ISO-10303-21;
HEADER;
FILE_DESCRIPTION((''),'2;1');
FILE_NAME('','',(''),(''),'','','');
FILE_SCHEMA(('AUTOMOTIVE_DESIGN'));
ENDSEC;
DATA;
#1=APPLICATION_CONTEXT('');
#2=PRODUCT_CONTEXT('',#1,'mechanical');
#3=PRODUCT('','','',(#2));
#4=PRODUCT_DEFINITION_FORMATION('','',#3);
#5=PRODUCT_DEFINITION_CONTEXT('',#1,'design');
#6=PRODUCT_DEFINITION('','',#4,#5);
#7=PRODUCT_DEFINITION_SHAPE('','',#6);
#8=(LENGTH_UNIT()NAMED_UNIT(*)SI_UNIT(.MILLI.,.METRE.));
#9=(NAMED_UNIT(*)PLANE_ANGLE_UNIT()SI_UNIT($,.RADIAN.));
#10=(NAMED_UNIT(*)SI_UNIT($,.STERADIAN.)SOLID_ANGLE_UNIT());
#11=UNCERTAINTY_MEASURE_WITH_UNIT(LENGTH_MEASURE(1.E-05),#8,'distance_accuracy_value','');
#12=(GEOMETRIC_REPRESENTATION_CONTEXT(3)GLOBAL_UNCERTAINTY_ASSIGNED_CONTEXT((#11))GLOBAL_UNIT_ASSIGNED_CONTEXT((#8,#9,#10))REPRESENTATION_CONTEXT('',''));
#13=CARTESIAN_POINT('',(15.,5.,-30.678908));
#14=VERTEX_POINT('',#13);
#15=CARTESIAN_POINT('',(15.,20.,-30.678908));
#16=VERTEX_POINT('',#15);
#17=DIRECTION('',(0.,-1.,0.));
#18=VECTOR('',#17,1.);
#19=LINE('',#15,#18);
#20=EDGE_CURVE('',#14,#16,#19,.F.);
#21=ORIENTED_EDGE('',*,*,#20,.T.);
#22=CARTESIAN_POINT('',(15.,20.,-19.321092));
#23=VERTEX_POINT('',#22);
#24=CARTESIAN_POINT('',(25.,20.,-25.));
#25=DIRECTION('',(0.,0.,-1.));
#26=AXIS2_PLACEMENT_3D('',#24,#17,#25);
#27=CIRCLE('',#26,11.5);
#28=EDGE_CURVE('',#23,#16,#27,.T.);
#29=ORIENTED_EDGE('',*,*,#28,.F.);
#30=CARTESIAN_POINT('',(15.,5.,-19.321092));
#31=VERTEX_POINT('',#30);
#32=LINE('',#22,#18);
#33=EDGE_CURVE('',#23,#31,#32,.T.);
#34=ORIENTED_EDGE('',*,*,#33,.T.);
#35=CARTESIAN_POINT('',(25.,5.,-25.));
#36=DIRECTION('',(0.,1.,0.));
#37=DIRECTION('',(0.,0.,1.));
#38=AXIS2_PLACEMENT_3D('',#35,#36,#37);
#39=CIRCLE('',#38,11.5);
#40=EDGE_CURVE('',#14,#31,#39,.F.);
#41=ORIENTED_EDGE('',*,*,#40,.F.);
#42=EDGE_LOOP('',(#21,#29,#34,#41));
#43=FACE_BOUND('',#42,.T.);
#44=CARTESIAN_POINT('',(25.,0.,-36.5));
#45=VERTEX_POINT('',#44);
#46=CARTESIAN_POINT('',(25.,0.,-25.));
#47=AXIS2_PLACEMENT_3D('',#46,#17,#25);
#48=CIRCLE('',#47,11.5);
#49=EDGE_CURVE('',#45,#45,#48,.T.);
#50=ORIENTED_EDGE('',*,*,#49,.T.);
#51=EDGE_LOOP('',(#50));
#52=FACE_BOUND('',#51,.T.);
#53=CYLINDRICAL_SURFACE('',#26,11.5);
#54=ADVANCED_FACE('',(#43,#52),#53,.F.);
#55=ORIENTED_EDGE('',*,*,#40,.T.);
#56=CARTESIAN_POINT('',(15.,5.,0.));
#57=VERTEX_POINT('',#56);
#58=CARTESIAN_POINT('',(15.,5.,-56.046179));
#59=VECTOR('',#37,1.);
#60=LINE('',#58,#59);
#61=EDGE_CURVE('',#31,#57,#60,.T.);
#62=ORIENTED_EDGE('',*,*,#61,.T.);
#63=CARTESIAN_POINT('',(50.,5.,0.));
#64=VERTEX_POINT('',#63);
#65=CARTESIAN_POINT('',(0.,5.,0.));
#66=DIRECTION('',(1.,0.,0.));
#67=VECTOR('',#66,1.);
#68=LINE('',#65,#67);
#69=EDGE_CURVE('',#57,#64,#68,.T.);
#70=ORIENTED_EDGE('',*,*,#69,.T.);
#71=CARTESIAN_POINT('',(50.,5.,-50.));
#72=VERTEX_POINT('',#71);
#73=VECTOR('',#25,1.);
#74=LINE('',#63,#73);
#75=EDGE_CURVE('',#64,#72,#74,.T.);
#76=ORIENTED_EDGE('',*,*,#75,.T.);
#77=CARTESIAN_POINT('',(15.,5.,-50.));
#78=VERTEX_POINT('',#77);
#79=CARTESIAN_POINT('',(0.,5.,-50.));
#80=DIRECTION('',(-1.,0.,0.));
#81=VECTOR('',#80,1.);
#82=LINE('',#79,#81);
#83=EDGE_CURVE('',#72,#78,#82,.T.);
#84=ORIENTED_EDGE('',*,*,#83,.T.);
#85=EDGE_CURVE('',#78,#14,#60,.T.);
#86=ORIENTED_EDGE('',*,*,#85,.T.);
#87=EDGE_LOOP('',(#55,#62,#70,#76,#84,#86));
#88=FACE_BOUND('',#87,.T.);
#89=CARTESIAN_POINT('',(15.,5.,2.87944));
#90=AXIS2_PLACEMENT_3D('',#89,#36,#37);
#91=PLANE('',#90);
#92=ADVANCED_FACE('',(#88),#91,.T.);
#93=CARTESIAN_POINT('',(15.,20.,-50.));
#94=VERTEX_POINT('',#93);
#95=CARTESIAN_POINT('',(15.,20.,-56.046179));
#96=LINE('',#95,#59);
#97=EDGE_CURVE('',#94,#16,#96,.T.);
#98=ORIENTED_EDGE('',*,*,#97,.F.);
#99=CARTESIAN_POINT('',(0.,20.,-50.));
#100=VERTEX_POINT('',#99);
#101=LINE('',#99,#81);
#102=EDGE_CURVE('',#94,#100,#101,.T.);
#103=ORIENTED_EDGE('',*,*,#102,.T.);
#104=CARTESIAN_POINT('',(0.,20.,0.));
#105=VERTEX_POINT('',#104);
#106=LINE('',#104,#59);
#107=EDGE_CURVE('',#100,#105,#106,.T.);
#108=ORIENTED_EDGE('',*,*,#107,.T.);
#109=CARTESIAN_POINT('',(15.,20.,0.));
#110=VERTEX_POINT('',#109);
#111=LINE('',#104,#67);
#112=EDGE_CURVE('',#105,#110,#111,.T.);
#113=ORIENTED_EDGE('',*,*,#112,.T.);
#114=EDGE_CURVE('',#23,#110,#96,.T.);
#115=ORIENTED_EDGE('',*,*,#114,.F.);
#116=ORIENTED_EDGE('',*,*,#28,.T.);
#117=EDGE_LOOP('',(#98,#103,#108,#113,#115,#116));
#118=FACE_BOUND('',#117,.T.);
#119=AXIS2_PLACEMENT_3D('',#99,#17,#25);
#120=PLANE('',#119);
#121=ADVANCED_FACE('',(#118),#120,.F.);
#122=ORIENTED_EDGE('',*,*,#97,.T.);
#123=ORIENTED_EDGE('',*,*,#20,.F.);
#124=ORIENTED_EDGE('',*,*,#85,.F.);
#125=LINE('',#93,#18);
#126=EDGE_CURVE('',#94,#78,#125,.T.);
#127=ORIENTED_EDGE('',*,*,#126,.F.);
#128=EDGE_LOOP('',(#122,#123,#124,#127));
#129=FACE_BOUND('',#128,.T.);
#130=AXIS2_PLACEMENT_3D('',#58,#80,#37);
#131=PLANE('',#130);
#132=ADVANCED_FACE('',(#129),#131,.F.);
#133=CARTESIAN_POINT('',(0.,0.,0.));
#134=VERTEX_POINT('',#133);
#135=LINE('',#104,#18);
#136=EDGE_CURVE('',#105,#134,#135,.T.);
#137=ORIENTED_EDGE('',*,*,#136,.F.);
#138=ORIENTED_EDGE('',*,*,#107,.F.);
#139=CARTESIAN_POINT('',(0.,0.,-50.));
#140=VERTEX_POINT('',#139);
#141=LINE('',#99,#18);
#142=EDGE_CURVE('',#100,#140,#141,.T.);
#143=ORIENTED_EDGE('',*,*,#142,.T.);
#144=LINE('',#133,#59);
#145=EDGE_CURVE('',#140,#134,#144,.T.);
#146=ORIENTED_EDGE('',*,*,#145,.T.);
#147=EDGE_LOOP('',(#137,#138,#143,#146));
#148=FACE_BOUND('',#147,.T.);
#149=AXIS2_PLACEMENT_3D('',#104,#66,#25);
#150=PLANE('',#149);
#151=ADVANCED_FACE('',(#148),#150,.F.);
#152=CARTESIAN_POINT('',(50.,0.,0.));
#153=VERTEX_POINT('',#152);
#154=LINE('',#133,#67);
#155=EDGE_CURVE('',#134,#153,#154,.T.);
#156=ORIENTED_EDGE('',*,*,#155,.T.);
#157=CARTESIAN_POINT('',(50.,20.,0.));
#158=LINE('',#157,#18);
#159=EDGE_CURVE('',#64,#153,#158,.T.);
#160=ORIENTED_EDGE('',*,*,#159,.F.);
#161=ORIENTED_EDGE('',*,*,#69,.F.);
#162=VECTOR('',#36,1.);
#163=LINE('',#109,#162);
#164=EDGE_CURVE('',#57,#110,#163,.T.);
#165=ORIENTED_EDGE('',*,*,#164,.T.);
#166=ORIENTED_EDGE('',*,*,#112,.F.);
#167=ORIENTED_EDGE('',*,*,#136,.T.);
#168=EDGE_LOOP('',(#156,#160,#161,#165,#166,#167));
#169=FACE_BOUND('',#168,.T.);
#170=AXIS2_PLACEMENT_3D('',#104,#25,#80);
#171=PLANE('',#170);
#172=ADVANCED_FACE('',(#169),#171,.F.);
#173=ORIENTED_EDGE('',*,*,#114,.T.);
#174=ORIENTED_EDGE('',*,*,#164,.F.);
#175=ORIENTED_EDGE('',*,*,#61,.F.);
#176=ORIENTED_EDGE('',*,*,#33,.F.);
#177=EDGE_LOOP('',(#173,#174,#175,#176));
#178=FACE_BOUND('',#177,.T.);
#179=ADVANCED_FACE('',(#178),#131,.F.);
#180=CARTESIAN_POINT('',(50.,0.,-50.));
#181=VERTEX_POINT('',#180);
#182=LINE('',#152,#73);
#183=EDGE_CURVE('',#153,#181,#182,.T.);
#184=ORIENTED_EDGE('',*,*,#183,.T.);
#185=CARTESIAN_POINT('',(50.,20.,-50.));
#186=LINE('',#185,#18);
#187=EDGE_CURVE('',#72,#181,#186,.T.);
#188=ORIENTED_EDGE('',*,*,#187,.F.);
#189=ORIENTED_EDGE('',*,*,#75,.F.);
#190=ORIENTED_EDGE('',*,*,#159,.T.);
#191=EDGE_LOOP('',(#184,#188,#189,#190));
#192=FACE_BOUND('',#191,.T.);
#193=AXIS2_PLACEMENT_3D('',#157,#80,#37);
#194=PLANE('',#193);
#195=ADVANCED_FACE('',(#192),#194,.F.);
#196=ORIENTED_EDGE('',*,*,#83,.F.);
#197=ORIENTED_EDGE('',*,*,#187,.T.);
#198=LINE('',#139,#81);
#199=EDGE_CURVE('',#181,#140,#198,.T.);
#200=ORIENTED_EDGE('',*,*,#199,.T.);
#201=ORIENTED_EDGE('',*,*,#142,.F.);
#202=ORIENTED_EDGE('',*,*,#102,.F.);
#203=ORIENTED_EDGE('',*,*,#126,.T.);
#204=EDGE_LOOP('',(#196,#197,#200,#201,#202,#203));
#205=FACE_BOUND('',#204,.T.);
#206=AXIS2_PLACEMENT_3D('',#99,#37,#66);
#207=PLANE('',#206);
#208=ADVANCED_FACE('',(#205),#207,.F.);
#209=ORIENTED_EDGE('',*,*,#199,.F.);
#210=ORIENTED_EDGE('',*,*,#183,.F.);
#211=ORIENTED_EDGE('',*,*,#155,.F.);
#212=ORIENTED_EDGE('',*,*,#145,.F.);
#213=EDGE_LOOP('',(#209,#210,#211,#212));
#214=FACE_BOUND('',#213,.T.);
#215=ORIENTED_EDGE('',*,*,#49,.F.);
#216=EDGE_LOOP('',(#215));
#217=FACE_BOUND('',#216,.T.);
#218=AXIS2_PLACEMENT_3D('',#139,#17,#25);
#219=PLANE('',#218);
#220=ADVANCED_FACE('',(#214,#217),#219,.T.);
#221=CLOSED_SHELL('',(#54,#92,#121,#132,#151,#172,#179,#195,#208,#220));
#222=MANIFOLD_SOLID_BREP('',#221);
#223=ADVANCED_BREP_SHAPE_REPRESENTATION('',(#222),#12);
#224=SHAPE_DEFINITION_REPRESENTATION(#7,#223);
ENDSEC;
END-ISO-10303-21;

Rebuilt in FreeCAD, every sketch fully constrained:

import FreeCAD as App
import Part
import Sketcher
Q = App.Units.Quantity


def add_polygon(sketch, points):
    """Adds a closed chain of lines whose ends are joined by coincident constraints."""
    first, n = sketch.GeometryCount, len(points)
    for a, b in zip(points, points[1:] + points[:1]):
        sketch.addGeometry(Part.LineSegment(App.Vector(*a, 0), App.Vector(*b, 0)), False)
    for i in range(n):
        sketch.addConstraint(Sketcher.Constraint("Coincident", first + i, 2, first + (i + 1) % n, 1))

doc = App.newDocument("Part")
body = doc.addObject("PartDesign::Body", "Body")

# Sketch on XZ plane
sketch1 = body.newObject("Sketcher::SketchObject", "Sketch")
sketch1.AttachmentSupport = (doc.getObject("XZ_Plane"), [""])
sketch1.MapMode = "FlatFace"
add_polygon(sketch1, [(0, -50), (0, 0), (50, 0), (50, -50)])  # lines 0-3
sketch1.addConstraint(Sketcher.Constraint("Vertical", 0))
sketch1.addConstraint(Sketcher.Constraint("Horizontal", 1))
sketch1.addConstraint(Sketcher.Constraint("Vertical", 2))
sketch1.addConstraint(Sketcher.Constraint("Horizontal", 3))
sketch1.addConstraint(Sketcher.Constraint("Coincident", 0, 2, -1, 1))
sketch1.addConstraint(Sketcher.Constraint("Equal", 3, 0))
sketch1.addConstraint(Sketcher.Constraint("DistanceX", 1, 1, 1, 2, Q("50 mm")))
pad1 = body.newObject("PartDesign::Pad", "Pad")
pad1.Profile = sketch1
pad1.Length = 20
pad1.Reversed = True

# Sketch on XZ plane
sketch2 = body.newObject("Sketcher::SketchObject", "Sketch001")
sketch2.AttachmentSupport = (doc.getObject("XZ_Plane"), [""])
sketch2.MapMode = "FlatFace"
sketch2.addGeometry(Part.Circle(App.Vector(25, -25, 0), App.Vector(0, 0, 1), 11.5), False)
sketch2.addConstraint(Sketcher.Constraint("Diameter", 0, Q("23 mm")))
sketch2.addConstraint(Sketcher.Constraint("DistanceX", -1, 1, 0, 3, Q("25 mm")))
sketch2.addConstraint(Sketcher.Constraint("DistanceY", 0, 3, -1, 1, Q("25 mm")))
pocket1 = body.newObject("PartDesign::Pocket", "Pocket")
pocket1.Profile = sketch2
pocket1.Type = "ThroughAll"

# Sketch on XZ plane
sketch3 = body.newObject("Sketcher::SketchObject", "Sketch002")
sketch3.AttachmentSupport = (doc.getObject("XZ_Plane"), [""])
sketch3.MapMode = "FlatFace"
sketch3.AttachmentOffset = App.Placement(App.Vector(0, 0, -20), App.Rotation())
add_polygon(sketch3, [(15, -56.046179), (15, 2.87944), (53.473107, 2.87944), (53.473107, -56.046179)])  # lines 0-3
sketch3.addConstraint(Sketcher.Constraint("Vertical", 0))
sketch3.addConstraint(Sketcher.Constraint("Horizontal", 1))
sketch3.addConstraint(Sketcher.Constraint("Vertical", 2))
sketch3.addConstraint(Sketcher.Constraint("Horizontal", 3))
sketch3.addConstraint(Sketcher.Constraint("DistanceX", -1, 1, 0, 2, Q("15 mm")))
sketch3.addConstraint(Sketcher.Constraint("DistanceY", 0, 1, 0, 2, Q("58.925619 mm")))
sketch3.addConstraint(Sketcher.Constraint("DistanceX", 1, 1, 1, 2, Q("38.473107 mm")))
sketch3.addConstraint(Sketcher.Constraint("DistanceY", -1, 1, 0, 2, Q("2.87944 mm")))
pocket2 = body.newObject("PartDesign::Pocket", "Pocket001")
pocket2.Profile = sketch3
pocket2.Length = 15
pocket2.Reversed = True

doc.recompute()
